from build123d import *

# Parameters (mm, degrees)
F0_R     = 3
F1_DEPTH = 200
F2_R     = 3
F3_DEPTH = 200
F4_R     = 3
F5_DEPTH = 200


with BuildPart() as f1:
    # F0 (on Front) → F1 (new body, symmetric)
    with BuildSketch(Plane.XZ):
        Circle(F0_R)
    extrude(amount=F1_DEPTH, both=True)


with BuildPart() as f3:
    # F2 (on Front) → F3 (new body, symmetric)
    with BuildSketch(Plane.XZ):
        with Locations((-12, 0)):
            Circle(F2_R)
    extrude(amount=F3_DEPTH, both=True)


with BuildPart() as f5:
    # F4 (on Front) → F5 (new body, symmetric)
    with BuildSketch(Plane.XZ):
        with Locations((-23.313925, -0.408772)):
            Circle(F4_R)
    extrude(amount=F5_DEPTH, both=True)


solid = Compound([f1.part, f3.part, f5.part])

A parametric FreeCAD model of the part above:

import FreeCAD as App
import Part
import Sketcher

doc = App.newDocument("Part")
body = doc.addObject("PartDesign::Body", "Body")

# Sketch on XZ plane
sketch1 = body.newObject("Sketcher::SketchObject", "Sketch")
sketch1.AttachmentSupport = (doc.getObject("XZ_Plane"), [""])
sketch1.MapMode = "FlatFace"
sketch1.addGeometry(Part.Circle(App.Vector(0, 0, 0), App.Vector(0, 0, 1), 3), False)
sketch1.addConstraint([
    Sketcher.Constraint("Coincident", 0, 3, -1, 1),
    Sketcher.Constraint("Diameter", 0, 6.0),
])
pad1 = body.newObject("PartDesign::Pad", "Pad")
pad1.Profile = sketch1
pad1.Length = 400
pad1.Midplane = True
body2 = doc.addObject("PartDesign::Body", "Body001")

# Sketch on XZ plane
sketch2 = body2.newObject("Sketcher::SketchObject", "Sketch001")
sketch2.AttachmentSupport = (doc.getObject("XZ_Plane001"), [""])
sketch2.MapMode = "FlatFace"
sketch2.addGeometry(Part.Circle(App.Vector(-12, 0, 0), App.Vector(0, 0, 1), 3), False)
sketch2.addConstraint([
    Sketcher.Constraint("PointOnObject", 0, 3, -1),
    Sketcher.Constraint("Diameter", 0, 6.0),
    Sketcher.Constraint("DistanceX", 0, 3, -1, 1, 12.0),
])
pad2 = body2.newObject("PartDesign::Pad", "Pad001")
pad2.Profile = sketch2
pad2.Length = 400
pad2.Midplane = True
body3 = doc.addObject("PartDesign::Body", "Body002")

# Sketch on XZ plane
sketch3 = body3.newObject("Sketcher::SketchObject", "Sketch002")
sketch3.AttachmentSupport = (doc.getObject("XZ_Plane002"), [""])
sketch3.MapMode = "FlatFace"
sketch3.addGeometry(Part.Circle(App.Vector(-23.3, -0.4, 0), App.Vector(0, 0, 1), 3), False)
sketch3.addConstraint([
    Sketcher.Constraint("Diameter", 0, 6.0),
    Sketcher.Constraint("DistanceX", 0, 3, -1, 1, 23.313925),
    Sketcher.Constraint("DistanceY", 0, 3, -1, 1, 0.408772),
])
pad3 = body3.newObject("PartDesign::Pad", "Pad002")
pad3.Profile = sketch3
pad3.Length = 400
pad3.Midplane = True

doc.recompute()
